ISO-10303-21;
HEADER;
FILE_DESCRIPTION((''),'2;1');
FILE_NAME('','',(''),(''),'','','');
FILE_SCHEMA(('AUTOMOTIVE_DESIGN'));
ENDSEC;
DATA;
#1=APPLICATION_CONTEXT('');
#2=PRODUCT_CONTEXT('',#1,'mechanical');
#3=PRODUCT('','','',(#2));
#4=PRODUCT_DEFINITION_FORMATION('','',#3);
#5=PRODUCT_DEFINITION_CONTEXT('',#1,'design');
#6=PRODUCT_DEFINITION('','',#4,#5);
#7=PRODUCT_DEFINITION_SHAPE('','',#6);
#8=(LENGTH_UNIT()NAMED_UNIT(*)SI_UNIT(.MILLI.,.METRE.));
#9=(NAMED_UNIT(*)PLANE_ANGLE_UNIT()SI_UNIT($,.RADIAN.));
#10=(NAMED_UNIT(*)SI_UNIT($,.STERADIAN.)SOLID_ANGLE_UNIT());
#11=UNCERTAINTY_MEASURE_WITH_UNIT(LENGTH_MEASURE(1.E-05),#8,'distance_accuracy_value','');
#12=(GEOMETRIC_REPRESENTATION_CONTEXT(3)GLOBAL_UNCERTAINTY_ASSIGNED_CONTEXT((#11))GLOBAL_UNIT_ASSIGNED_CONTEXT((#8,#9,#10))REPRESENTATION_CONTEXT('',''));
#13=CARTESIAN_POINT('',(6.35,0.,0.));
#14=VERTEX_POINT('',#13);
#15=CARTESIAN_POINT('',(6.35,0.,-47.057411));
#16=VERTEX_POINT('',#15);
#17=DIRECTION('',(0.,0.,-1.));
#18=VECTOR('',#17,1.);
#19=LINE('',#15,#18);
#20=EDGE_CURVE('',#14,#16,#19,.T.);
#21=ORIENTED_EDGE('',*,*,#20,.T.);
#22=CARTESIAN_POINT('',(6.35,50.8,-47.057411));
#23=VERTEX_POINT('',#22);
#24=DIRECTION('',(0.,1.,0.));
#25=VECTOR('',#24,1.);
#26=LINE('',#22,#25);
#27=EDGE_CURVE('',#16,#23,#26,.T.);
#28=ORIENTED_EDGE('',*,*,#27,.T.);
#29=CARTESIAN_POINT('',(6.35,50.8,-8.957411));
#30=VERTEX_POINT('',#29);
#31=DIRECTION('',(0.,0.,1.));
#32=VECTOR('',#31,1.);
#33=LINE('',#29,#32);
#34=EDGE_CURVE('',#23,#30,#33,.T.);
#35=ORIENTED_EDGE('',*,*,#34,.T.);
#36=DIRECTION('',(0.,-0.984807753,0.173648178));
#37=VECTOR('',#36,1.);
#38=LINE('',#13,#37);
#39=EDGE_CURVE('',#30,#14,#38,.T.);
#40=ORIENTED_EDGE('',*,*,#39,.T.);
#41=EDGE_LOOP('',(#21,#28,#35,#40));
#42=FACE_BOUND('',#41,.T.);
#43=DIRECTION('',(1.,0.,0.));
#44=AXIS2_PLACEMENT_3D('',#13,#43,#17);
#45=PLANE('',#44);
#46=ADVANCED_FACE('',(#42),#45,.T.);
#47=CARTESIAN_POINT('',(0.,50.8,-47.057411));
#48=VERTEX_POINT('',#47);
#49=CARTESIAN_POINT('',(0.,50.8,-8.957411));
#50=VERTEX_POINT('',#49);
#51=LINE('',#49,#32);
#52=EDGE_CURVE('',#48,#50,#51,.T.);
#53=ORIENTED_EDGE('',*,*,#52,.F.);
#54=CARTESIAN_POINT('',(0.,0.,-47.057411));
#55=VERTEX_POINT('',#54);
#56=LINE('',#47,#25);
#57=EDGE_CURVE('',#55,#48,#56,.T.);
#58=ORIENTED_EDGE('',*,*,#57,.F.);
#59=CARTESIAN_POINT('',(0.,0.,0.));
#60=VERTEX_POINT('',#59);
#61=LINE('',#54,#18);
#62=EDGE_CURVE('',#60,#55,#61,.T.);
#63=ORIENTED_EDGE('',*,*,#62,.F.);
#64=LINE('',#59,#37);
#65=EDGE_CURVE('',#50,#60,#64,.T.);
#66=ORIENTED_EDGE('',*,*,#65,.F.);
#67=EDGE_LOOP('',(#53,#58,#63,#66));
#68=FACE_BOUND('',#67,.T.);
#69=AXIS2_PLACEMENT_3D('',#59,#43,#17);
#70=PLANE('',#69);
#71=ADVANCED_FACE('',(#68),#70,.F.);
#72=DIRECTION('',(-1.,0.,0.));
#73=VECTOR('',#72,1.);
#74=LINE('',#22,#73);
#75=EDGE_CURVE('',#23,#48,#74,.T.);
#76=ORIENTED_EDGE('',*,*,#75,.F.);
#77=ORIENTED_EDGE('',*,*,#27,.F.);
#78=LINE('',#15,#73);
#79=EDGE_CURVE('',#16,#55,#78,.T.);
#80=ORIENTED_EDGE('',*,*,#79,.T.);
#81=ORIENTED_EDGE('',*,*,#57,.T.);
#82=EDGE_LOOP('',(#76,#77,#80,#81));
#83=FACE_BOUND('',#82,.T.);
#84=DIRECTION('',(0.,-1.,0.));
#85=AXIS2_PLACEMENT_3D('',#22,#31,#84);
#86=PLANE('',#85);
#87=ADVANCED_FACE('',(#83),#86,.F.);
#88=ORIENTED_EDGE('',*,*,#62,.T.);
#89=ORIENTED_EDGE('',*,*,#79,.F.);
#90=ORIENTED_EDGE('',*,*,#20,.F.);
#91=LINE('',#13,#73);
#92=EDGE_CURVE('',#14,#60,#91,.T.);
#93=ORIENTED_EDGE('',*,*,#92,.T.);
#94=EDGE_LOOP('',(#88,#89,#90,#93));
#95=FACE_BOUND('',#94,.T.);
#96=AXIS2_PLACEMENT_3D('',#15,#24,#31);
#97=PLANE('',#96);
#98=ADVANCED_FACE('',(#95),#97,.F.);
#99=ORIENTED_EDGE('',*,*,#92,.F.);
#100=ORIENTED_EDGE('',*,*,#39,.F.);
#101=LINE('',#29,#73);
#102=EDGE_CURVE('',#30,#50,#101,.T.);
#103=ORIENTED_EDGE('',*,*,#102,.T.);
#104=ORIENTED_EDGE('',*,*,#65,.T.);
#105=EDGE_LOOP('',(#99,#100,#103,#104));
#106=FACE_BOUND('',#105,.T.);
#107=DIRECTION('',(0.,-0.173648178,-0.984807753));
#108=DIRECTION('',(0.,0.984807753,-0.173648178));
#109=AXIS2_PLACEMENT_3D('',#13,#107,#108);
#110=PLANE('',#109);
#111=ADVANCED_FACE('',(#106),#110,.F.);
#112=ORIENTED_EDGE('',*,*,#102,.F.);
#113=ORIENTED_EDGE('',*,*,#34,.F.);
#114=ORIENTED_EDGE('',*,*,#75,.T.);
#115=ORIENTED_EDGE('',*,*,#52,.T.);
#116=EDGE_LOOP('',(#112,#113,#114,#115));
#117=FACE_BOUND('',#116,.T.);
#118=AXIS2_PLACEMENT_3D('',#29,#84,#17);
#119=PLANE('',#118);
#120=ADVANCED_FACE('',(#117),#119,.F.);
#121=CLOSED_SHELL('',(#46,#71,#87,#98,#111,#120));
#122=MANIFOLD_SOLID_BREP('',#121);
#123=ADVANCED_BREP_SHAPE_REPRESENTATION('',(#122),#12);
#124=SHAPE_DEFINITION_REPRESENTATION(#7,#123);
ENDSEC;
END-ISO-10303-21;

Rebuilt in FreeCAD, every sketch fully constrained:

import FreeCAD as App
import Part
import Sketcher
from FreeCAD import Vector
Q = App.Units.Quantity


def add_polygon(sketch, points):
    """Adds a closed chain of lines whose ends are joined by coincident constraints."""
    first, n = sketch.GeometryCount, len(points)
    for a, b in zip(points, points[1:] + points[:1]):
        sketch.addGeometry(Part.LineSegment(App.Vector(*a, 0), App.Vector(*b, 0)), False)
    for i in range(n):
        sketch.addConstraint(Sketcher.Constraint("Coincident", first + i, 2, first + (i + 1) % n, 1))

doc = App.newDocument("Part")
params = doc.addObject("Spreadsheet::Sheet", "Params")
for row, (alias, value) in enumerate([
    ("sketch1_width", "2 in"),
    ("sketch1_height", "1.5 in"),
    ("pad1_length", "0.25 in"),
], start=1):
    params.set(f"A{row}", alias)
    params.set(f"B{row}", "=" + value)
    params.setAlias(f"B{row}", alias)

body = doc.addObject("PartDesign::Body", "Body")

# Sketch on YZ plane
sketch1 = doc.addObject("Sketcher::SketchObject", "Sketch")
body.addObject(sketch1)
sketch1.AttachmentSupport = (doc.YZ_Plane, [""])
sketch1.MapMode = "FlatFace"
add_polygon(sketch1, [(51, -9), (0, 0), (0, -47), (51, -47)])  # lines 0-3
sketch1.addConstraint(Sketcher.Constraint("Vertical", 1))
sketch1.addConstraint(Sketcher.Constraint("Horizontal", 2))
sketch1.addConstraint(Sketcher.Constraint("Vertical", 3))
sketch1.addConstraint(Sketcher.Constraint("Coincident", 0, 2, -1, 1))
sketch1.addConstraint(Sketcher.Constraint("DistanceX", 2, 1, 2, 2, Q("2 in")))
sketch1.addConstraint(Sketcher.Constraint("DistanceY", 3, 1, 3, 2, Q("1.5 in")))
sketch1.addConstraint(Sketcher.Constraint("Angle", 0, Q("170 deg")))
sketch1.setExpression("Constraints[8]", "Params.sketch1_width")
sketch1.setExpression("Constraints[9]", "Params.sketch1_height")
pad1 = doc.addObject("PartDesign::Pad", "Pad")
body.addObject(pad1)
pad1.Profile = sketch1
pad1.setExpression("Length", "Params.pad1_length")

doc.recompute()
